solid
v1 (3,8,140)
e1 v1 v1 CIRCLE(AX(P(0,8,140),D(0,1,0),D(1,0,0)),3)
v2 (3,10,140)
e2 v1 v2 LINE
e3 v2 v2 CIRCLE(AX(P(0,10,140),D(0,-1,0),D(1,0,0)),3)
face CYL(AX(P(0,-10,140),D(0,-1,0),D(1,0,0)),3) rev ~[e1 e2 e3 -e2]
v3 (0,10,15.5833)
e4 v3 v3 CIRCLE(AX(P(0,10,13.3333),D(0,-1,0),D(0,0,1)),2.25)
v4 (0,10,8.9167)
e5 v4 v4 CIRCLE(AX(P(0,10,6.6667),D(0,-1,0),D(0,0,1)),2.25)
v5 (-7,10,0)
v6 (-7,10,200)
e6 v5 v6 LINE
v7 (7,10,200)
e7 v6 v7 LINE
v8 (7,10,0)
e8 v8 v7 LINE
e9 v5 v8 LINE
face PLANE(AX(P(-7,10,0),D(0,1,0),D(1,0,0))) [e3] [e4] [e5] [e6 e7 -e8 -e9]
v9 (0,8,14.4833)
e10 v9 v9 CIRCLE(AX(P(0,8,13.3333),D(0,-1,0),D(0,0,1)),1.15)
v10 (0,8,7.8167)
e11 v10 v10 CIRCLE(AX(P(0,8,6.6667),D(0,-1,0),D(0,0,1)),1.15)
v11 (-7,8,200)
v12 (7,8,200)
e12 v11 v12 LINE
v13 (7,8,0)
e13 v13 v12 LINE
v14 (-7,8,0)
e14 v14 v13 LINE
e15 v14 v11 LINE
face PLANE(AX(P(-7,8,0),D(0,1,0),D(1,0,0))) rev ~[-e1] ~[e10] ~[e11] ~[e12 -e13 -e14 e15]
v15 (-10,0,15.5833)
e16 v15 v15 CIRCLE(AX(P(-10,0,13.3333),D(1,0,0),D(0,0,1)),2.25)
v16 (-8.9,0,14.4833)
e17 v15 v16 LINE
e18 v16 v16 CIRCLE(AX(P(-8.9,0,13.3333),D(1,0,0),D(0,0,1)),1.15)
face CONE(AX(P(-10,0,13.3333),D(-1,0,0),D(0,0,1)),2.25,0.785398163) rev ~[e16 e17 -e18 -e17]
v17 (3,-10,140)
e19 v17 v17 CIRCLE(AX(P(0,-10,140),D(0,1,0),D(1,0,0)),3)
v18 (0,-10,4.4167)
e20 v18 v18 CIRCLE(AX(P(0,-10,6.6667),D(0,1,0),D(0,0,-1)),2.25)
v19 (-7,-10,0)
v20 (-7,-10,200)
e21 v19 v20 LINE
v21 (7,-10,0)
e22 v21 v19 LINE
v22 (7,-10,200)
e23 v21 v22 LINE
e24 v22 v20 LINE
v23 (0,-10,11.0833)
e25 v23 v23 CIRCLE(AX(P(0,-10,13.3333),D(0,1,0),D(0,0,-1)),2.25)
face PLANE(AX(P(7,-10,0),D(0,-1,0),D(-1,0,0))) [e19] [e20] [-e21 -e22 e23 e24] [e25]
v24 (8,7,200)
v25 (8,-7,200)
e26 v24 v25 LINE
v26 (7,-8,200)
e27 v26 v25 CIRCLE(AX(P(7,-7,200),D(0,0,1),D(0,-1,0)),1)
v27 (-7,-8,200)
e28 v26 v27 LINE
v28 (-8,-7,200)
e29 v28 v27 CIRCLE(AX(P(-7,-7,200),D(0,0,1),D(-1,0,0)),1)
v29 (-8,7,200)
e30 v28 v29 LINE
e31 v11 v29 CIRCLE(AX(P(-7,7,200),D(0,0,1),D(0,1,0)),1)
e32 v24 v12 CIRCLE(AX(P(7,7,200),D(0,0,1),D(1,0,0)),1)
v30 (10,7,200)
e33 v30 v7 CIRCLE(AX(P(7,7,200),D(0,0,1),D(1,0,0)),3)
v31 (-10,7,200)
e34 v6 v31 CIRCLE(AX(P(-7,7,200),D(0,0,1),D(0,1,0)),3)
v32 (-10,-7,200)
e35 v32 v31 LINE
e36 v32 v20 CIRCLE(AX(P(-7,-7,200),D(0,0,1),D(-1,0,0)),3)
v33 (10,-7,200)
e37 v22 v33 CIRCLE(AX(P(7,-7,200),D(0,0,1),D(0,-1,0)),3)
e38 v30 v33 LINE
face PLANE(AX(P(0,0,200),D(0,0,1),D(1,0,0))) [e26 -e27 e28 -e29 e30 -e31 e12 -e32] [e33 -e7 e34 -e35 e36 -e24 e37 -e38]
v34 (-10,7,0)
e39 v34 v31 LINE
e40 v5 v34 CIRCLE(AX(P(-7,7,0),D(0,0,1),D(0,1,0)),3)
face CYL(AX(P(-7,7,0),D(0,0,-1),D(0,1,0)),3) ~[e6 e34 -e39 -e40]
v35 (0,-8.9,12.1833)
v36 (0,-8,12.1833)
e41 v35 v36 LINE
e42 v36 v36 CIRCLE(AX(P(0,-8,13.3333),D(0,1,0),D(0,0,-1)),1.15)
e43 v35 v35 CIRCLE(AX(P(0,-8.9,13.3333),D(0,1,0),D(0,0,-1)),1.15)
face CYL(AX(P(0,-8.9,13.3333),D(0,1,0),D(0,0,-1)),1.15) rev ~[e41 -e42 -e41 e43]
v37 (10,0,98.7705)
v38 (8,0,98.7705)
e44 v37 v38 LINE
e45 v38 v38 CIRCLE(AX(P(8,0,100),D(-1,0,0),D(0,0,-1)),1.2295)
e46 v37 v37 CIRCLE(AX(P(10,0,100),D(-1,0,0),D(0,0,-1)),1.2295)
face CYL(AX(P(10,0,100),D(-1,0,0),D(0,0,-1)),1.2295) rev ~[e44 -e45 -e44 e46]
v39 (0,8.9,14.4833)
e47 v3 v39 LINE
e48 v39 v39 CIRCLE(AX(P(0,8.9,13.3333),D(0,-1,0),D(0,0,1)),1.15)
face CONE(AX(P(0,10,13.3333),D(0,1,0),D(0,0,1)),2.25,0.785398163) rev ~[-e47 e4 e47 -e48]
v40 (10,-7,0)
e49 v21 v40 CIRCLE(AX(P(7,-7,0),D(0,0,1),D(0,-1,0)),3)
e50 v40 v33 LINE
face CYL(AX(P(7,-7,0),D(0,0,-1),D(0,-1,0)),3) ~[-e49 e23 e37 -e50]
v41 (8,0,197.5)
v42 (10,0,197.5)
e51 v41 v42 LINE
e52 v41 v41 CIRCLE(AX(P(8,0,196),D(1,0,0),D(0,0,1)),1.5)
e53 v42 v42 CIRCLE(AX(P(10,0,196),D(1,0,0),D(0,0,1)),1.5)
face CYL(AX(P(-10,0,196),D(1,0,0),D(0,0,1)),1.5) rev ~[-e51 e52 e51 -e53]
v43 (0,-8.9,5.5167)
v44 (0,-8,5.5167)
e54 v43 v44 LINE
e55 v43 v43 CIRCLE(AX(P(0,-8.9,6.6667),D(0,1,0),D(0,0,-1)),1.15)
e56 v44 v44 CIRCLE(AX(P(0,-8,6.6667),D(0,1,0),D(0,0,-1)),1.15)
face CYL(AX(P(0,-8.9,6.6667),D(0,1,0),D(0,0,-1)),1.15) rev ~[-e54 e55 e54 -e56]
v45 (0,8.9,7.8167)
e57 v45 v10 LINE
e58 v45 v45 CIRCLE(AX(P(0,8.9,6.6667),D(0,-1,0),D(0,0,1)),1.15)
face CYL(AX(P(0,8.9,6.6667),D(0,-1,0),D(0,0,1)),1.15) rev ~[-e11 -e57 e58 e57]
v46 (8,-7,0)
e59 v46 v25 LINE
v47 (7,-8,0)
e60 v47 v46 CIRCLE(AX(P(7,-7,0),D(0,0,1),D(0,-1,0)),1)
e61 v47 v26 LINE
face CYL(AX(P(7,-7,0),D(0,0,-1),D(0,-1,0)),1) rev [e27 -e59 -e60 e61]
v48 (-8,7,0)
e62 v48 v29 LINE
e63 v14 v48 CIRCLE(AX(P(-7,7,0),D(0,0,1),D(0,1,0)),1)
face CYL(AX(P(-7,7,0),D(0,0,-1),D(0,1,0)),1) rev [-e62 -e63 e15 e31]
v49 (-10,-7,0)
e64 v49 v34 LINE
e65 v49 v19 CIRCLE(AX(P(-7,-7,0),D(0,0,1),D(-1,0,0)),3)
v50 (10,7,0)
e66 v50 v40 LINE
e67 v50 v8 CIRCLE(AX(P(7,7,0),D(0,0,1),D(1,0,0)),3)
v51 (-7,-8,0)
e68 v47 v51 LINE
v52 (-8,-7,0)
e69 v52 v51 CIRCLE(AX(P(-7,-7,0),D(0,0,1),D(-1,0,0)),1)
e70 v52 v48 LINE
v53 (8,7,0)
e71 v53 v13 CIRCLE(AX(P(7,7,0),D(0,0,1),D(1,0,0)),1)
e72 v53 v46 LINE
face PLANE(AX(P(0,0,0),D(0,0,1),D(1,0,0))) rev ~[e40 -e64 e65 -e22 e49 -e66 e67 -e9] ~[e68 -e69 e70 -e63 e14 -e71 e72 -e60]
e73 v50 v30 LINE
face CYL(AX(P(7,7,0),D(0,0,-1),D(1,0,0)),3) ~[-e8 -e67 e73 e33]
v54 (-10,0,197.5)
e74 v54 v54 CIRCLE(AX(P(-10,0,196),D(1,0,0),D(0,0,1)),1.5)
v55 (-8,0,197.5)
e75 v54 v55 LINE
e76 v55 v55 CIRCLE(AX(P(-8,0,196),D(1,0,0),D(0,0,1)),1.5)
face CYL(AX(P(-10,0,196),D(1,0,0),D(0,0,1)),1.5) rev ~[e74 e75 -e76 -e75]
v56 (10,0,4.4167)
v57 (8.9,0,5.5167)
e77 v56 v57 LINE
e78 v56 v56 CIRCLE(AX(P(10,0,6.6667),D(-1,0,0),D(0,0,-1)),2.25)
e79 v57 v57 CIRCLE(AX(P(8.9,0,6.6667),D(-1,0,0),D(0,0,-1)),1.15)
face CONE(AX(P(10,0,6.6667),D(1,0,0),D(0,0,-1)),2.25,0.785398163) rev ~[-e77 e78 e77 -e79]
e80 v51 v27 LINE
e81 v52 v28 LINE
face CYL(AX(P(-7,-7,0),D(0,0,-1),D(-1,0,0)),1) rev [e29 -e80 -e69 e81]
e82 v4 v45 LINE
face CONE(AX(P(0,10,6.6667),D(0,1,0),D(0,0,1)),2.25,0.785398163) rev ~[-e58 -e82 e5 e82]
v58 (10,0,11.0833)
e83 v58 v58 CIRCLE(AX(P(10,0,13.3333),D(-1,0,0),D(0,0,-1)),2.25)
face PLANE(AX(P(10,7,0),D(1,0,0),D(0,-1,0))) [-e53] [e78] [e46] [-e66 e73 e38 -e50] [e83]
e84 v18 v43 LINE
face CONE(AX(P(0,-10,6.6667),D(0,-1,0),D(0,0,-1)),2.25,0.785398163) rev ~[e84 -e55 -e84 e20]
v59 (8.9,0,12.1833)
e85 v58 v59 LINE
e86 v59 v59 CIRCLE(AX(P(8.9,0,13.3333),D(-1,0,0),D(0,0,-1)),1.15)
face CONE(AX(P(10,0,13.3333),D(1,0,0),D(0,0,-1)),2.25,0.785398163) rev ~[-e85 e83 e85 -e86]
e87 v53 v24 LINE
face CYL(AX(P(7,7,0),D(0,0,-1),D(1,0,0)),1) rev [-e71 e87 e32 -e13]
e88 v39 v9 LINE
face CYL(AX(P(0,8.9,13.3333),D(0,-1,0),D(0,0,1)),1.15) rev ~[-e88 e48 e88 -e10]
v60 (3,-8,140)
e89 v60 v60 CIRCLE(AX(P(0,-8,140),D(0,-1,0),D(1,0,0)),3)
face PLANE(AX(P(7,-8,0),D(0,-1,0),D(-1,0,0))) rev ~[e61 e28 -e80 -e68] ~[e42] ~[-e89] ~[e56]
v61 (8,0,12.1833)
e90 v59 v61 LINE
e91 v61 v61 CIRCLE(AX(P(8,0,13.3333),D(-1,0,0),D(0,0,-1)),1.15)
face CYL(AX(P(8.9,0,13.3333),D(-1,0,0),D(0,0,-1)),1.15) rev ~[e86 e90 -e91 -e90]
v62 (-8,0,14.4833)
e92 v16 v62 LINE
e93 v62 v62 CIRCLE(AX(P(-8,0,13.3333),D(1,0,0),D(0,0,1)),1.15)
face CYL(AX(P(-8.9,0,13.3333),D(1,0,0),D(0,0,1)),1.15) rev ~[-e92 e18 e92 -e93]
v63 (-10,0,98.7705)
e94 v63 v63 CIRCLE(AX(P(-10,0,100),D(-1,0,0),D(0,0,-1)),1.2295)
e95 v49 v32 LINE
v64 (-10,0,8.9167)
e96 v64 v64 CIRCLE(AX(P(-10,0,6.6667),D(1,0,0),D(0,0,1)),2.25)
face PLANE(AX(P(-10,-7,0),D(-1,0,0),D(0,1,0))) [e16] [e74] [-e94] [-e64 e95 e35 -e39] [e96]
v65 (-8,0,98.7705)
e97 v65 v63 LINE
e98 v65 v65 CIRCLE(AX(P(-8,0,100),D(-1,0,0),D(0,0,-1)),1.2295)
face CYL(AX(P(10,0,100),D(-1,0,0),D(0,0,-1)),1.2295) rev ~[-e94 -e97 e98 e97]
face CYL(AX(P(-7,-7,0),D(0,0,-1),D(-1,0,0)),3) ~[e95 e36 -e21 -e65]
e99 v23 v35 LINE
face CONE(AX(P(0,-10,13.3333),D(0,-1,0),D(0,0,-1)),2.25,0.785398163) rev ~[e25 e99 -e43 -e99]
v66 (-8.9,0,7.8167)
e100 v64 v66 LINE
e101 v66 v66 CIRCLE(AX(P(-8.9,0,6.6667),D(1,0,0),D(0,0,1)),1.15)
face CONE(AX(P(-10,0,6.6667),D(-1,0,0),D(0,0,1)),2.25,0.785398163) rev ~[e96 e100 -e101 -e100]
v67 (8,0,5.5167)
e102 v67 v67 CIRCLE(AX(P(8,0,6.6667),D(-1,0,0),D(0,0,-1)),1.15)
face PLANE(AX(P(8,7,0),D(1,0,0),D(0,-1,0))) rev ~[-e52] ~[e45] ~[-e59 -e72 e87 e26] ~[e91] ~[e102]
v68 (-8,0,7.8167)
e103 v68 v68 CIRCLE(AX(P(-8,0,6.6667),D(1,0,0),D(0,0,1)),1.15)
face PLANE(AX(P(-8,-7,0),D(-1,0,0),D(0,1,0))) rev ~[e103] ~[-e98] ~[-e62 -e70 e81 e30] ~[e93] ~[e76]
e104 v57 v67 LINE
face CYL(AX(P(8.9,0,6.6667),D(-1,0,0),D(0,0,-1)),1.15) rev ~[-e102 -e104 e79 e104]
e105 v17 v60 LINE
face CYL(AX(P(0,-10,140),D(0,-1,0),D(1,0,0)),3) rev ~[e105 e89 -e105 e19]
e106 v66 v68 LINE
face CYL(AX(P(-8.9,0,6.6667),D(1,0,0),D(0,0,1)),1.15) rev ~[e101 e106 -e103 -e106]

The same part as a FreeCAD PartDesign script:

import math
import FreeCAD as App
import Part
import Sketcher
from FreeCAD import Vector

doc = App.newDocument("Part")
body = doc.addObject("PartDesign::Body", "Body")

# Sketch on XY plane
sketch1 = body.newObject("Sketcher::SketchObject", "Sketch")
sketch1.AttachmentSupport = (doc.getObject("XY_Plane"), [""])
sketch1.MapMode = "FlatFace"
sketch1.addGeometry([
    Part.LineSegment(Vector(-10, 7, 0), Vector(-10, -7, 0)),  # 0
    Part.ArcOfCircle(Part.Circle(Vector(-7, -7, 0), Vector(0, 0, 1), 3), math.radians(180), math.radians(270)),  # 1
    Part.LineSegment(Vector(-7, -10, 0), Vector(7, -10, 0)),  # 2
    Part.ArcOfCircle(Part.Circle(Vector(7, -7, 0), Vector(0, 0, 1), 3), math.radians(-90), math.radians(0)),  # 3
    Part.LineSegment(Vector(10, -7, 0), Vector(10, 7, 0)),  # 4
    Part.ArcOfCircle(Part.Circle(Vector(7, 7, 0), Vector(0, 0, 1), 3), math.radians(0), math.radians(90)),  # 5
    Part.LineSegment(Vector(7, 10, 0), Vector(-7, 10, 0)),  # 6
    Part.ArcOfCircle(Part.Circle(Vector(-7, 7, 0), Vector(0, 0, 1), 3), math.radians(90), math.radians(180)),  # 7
    Part.ArcOfCircle(Part.Circle(Vector(-7, 7, 0), Vector(0, 0, 1), 1), math.radians(90), math.radians(180)),  # 8
    Part.LineSegment(Vector(-7, 8, 0), Vector(7, 8, 0)),  # 9
    Part.ArcOfCircle(Part.Circle(Vector(7, 7, 0), Vector(0, 0, 1), 1), math.radians(0), math.radians(90)),  # 10
    Part.LineSegment(Vector(8, 7, 0), Vector(8, -7, 0)),  # 11
    Part.ArcOfCircle(Part.Circle(Vector(7, -7, 0), Vector(0, 0, 1), 1), math.radians(-90), math.radians(0)),  # 12
    Part.LineSegment(Vector(7, -8, 0), Vector(-7, -8, 0)),  # 13
    Part.ArcOfCircle(Part.Circle(Vector(-7, -7, 0), Vector(0, 0, 1), 1), math.radians(180), math.radians(270)),  # 14
    Part.LineSegment(Vector(-8, -7, 0), Vector(-8, 7, 0)),  # 15
], False)
sketch1.addConstraint([
    Sketcher.Constraint("Tangent", 0, 2, 1, 1),
    Sketcher.Constraint("Tangent", 1, 2, 2, 1),
    Sketcher.Constraint("Tangent", 2, 2, 3, 1),
    Sketcher.Constraint("Tangent", 3, 2, 4, 1),
    Sketcher.Constraint("Tangent", 4, 2, 5, 1),
    Sketcher.Constraint("Tangent", 5, 2, 6, 1),
    Sketcher.Constraint("Tangent", 6, 2, 7, 1),
    Sketcher.Constraint("Tangent", 7, 2, 0, 1),
    Sketcher.Constraint("Tangent", 8, 1, 9, 1),
    Sketcher.Constraint("Tangent", 9, 2, 10, 2),
    Sketcher.Constraint("Tangent", 10, 1, 11, 1),
    Sketcher.Constraint("Tangent", 11, 2, 12, 2),
    Sketcher.Constraint("Tangent", 12, 1, 13, 1),
    Sketcher.Constraint("Tangent", 13, 2, 14, 2),
    Sketcher.Constraint("Tangent", 14, 1, 15, 1),
    Sketcher.Constraint("Tangent", 15, 2, 8, 2),
    Sketcher.Constraint("Vertical", 0),
    Sketcher.Constraint("Horizontal", 2),
    Sketcher.Constraint("Vertical", 4),
    Sketcher.Constraint("Horizontal", 6),
    Sketcher.Constraint("Horizontal", 9),
    Sketcher.Constraint("Vertical", 11),
    Sketcher.Constraint("Horizontal", 13),
    Sketcher.Constraint("Vertical", 15),
    Sketcher.Constraint("Coincident", 8, 3, 7, 3),
    Sketcher.Constraint("Coincident", 10, 3, 5, 3),
    Sketcher.Constraint("Coincident", 12, 3, 3, 3),
    Sketcher.Constraint("Equal", 1, 3),
    Sketcher.Constraint("Equal", 3, 5),
    Sketcher.Constraint("Equal", 5, 7),
    Sketcher.Constraint("Equal", 12, 14),
    Sketcher.Constraint("Symmetric", 1, 3, 5, 3, -1, 1),
    Sketcher.Constraint("Equal", 13, 0),
    Sketcher.Constraint("Radius", 1, 3.0),
    Sketcher.Constraint("Radius", 8, 1.0),
    Sketcher.Constraint("DistanceX", 0, 2, -1, 1, 10.0),
])
pad1 = body.newObject("PartDesign::Pad", "Pad")
pad1.Profile = sketch1
pad1.Length = 200

# Sketch on YZ plane
sketch2 = body.newObject("Sketcher::SketchObject", "Sketch001")
sketch2.AttachmentSupport = (doc.getObject("YZ_Plane"), [""])
sketch2.MapMode = "FlatFace"
sketch2.AttachmentOffset = App.Placement(Vector(0, 0, 10), App.Rotation())
sketch2.addGeometry([
    Part.Circle(Vector(0, 6.7, 0), Vector(0, 0, 1), 1.1),
    Part.Circle(Vector(0, 13.3, 0), Vector(0, 0, 1), 1.1),
], False)
sketch2.addConstraint([
    Sketcher.Constraint("Equal", 0, 1),
    Sketcher.Constraint("PointOnObject", 0, 3, -2),
    Sketcher.Constraint("PointOnObject", 1, 3, -2),
    Sketcher.Constraint("Diameter", 0, 2.3),
    Sketcher.Constraint("DistanceY", -1, 1, 0, 3, 6.6667),
    Sketcher.Constraint("DistanceY", -1, 1, 1, 3, 13.3333),
])
doc.recompute()
hole = body.newObject("PartDesign::Hole", "Hole")
hole.Profile = sketch2
hole.ThreadType = "None"
hole.Diameter = 2.3
hole.DepthType = "Dimension"
hole.Depth = 8
hole.DrillPoint = "Angled"
hole.DrillPointAngle = 118
hole.HoleCutType = "Countersink"
hole.HoleCutDiameter = 4.5
hole.HoleCutCountersinkAngle = 90

# Sketch on YZ plane
sketch3 = body.newObject("Sketcher::SketchObject", "Sketch002")
sketch3.AttachmentSupport = (doc.getObject("YZ_Plane"), [""])
sketch3.MapMode = "FlatFace"
sketch3.AttachmentOffset = App.Placement(Vector(0, 0, -10), App.Rotation())
sketch3.addGeometry([
    Part.Circle(Vector(0, 6.7, 0), Vector(0, 0, 1), 1.1),
    Part.Circle(Vector(0, 13.3, 0), Vector(0, 0, 1), 1.1),
], False)
sketch3.addConstraint([
    Sketcher.Constraint("Equal", 0, 1),
    Sketcher.Constraint("PointOnObject", 0, 3, -2),
    Sketcher.Constraint("PointOnObject", 1, 3, -2),
    Sketcher.Constraint("Diameter", 0, 2.3),
    Sketcher.Constraint("DistanceY", -1, 1, 0, 3, 6.6667),
    Sketcher.Constraint("DistanceY", -1, 1, 1, 3, 13.3333),
])
doc.recompute()
hole2 = body.newObject("PartDesign::Hole", "Hole001")
hole2.Profile = sketch3
hole2.ThreadType = "None"
hole2.Diameter = 2.3
hole2.DepthType = "Dimension"
hole2.Depth = 8
hole2.DrillPoint = "Angled"
hole2.DrillPointAngle = 118
hole2.HoleCutType = "Countersink"
hole2.HoleCutDiameter = 4.5
hole2.HoleCutCountersinkAngle = 90
hole2.Reversed = True

# Sketch on XZ plane
sketch4 = body.newObject("Sketcher::SketchObject", "Sketch003")
sketch4.AttachmentSupport = (doc.getObject("XZ_Plane"), [""])
sketch4.MapMode = "FlatFace"
sketch4.AttachmentOffset = App.Placement(Vector(0, 0, 10), App.Rotation())
sketch4.addGeometry([
    Part.Circle(Vector(0, 6.7, 0), Vector(0, 0, 1), 1.1),
    Part.Circle(Vector(0, 13.3, 0), Vector(0, 0, 1), 1.1),
], False)
sketch4.addConstraint([
    Sketcher.Constraint("Equal", 0, 1),
    Sketcher.Constraint("PointOnObject", 0, 3, -2),
    Sketcher.Constraint("PointOnObject", 1, 3, -2),
    Sketcher.Constraint("Diameter", 0, 2.3),
    Sketcher.Constraint("DistanceY", -1, 1, 0, 3, 6.6667),
    Sketcher.Constraint("DistanceY", -1, 1, 1, 3, 13.3333),
])
doc.recompute()
hole3 = body.newObject("PartDesign::Hole", "Hole002")
hole3.Profile = sketch4
hole3.ThreadType = "None"
hole3.Diameter = 2.3
hole3.DepthType = "Dimension"
hole3.Depth = 8
hole3.DrillPoint = "Angled"
hole3.DrillPointAngle = 118
hole3.HoleCutType = "Countersink"
hole3.HoleCutDiameter = 4.5
hole3.HoleCutCountersinkAngle = 90

# Sketch on XZ plane
sketch5 = body.newObject("Sketcher::SketchObject", "Sketch004")
sketch5.AttachmentSupport = (doc.getObject("XZ_Plane"), [""])
sketch5.MapMode = "FlatFace"
sketch5.AttachmentOffset = App.Placement(Vector(0, 0, -10), App.Rotation())
sketch5.addGeometry([
    Part.Circle(Vector(0, 13.3, 0), Vector(0, 0, 1), 1.1),
    Part.Circle(Vector(0, 6.7, 0), Vector(0, 0, 1), 1.1),
], False)
sketch5.addConstraint([
    Sketcher.Constraint("Equal", 0, 1),
    Sketcher.Constraint("PointOnObject", 0, 3, -2),
    Sketcher.Constraint("PointOnObject", 1, 3, -2),
    Sketcher.Constraint("Diameter", 0, 2.3),
    Sketcher.Constraint("DistanceY", -1, 1, 0, 3, 13.3333),
    Sketcher.Constraint("DistanceY", -1, 1, 1, 3, 6.6667),
])
doc.recompute()
hole4 = body.newObject("PartDesign::Hole", "Hole003")
hole4.Profile = sketch5
hole4.ThreadType = "None"
hole4.Diameter = 2.3
hole4.DepthType = "Dimension"
hole4.Depth = 8
hole4.DrillPoint = "Angled"
hole4.DrillPointAngle = 118
hole4.HoleCutType = "Countersink"
hole4.HoleCutDiameter = 4.5
hole4.HoleCutCountersinkAngle = 90
hole4.Reversed = True

# Sketch on XZ plane
sketch6 = body.newObject("Sketcher::SketchObject", "Sketch005")
sketch6.AttachmentSupport = (doc.getObject("XZ_Plane"), [""])
sketch6.MapMode = "FlatFace"
sketch6.AttachmentOffset = App.Placement(Vector(0, 0, 10), App.Rotation())
sketch6.addGeometry(Part.Circle(Vector(0, 140, 0), Vector(0, 0, 1), 3), False)
sketch6.addConstraint([
    Sketcher.Constraint("PointOnObject", 0, 3, -2),
    Sketcher.Constraint("Diameter", 0, 6.0),
    Sketcher.Constraint("DistanceY", -1, 1, 0, 3, 140.0),
])
pocket1 = body.newObject("PartDesign::Pocket", "Pocket")
pocket1.Profile = sketch6
pocket1.Type = "ThroughAll"

# Sketch on YZ plane
sketch7 = body.newObject("Sketcher::SketchObject", "Sketch006")
sketch7.AttachmentSupport = (doc.getObject("YZ_Plane"), [""])
sketch7.MapMode = "FlatFace"
sketch7.AttachmentOffset = App.Placement(Vector(0, 0, 10), App.Rotation())
sketch7.addGeometry(Part.Circle(Vector(0, 100, 0), Vector(0, 0, 1), 1.2), False)
sketch7.addConstraint([
    Sketcher.Constraint("PointOnObject", 0, 3, -2),
    Sketcher.Constraint("Diameter", 0, 2.459),
    Sketcher.Constraint("DistanceY", -1, 1, 0, 3, 100.0),
])
doc.recompute()
hole5 = body.newObject("PartDesign::Hole", "Hole004")
hole5.Profile = sketch7
hole5.ThreadType = "None"
hole5.Diameter = 2.459
hole5.DepthType = "ThroughAll"

# Sketch on YZ plane
sketch8 = body.newObject("Sketcher::SketchObject", "Sketch007")
sketch8.AttachmentSupport = (doc.getObject("YZ_Plane"), [""])
sketch8.MapMode = "FlatFace"
sketch8.AttachmentOffset = App.Placement(Vector(0, 0, -10), App.Rotation())
sketch8.addGeometry(Part.Circle(Vector(0, 196, 0), Vector(0, 0, 1), 1.5), False)
sketch8.addConstraint([
    Sketcher.Constraint("PointOnObject", 0, 3, -2),
    Sketcher.Constraint("Diameter", 0, 3.0),
    Sketcher.Constraint("DistanceY", -1, 1, 0, 3, 196.0),
])
doc.recompute()
hole6 = body.newObject("PartDesign::Hole", "Hole005")
hole6.Profile = sketch8
hole6.ThreadType = "None"
hole6.Diameter = 3
hole6.DepthType = "ThroughAll"
hole6.Reversed = True

doc.recompute()
